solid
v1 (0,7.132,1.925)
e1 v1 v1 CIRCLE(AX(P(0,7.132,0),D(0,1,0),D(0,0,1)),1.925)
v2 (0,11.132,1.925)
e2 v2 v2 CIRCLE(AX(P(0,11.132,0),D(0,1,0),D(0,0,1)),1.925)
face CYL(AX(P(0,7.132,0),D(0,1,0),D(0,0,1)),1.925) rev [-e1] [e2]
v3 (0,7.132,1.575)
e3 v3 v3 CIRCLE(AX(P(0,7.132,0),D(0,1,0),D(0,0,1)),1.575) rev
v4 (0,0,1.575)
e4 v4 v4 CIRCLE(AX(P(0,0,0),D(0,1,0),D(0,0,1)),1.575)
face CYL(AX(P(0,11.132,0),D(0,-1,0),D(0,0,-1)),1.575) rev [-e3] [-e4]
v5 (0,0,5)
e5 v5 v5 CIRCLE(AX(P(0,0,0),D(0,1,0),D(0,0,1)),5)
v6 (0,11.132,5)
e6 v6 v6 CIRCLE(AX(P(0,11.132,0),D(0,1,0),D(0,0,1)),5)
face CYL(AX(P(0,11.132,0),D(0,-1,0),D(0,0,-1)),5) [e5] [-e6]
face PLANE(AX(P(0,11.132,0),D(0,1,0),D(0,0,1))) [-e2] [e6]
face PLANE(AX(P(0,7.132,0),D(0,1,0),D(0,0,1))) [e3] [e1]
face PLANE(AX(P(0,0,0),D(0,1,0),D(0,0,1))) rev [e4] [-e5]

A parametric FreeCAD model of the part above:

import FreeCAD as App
import Part
import Sketcher
from FreeCAD import Vector

doc = App.newDocument("Part")
params = doc.addObject("Spreadsheet::Sheet", "Params")
for row, (alias, value) in enumerate([
    ("sketch1_diameter", "10 mm"),
    ("sketch1_diameter2", "3.15 mm"),
    ("pad1_length", "11.132 mm"),
    ("sketch2_diameter", "3.85 mm"),
    ("pocket1_length", "4 mm"),
], start=1):
    params.set(f"A{row}", alias)
    params.set(f"B{row}", "=" + value)
    params.setAlias(f"B{row}", alias)

body = doc.addObject("PartDesign::Body", "Body")

# Sketch on XZ plane
sketch1 = doc.addObject("Sketcher::SketchObject", "Sketch")
body.addObject(sketch1)
sketch1.AttachmentSupport = (doc.XZ_Plane, [""])
sketch1.MapMode = "FlatFace"
sketch1.addGeometry(Part.Circle(Vector(0, 0, 0), Vector(0, 0, 1), 5), False)
sketch1.addGeometry(Part.Circle(Vector(0, 0, 0), Vector(0, 0, 1), 1.575), False)
sketch1.addConstraint(Sketcher.Constraint("Coincident", 0, 3, -1, 1))
sketch1.addConstraint(Sketcher.Constraint("Coincident", 1, 3, -1, 1))
sketch1.addConstraint(Sketcher.Constraint("Diameter", 0, 10.0))
sketch1.addConstraint(Sketcher.Constraint("Diameter", 1, 3.15))
sketch1.setExpression("Constraints[2]", "Params.sketch1_diameter")
sketch1.setExpression("Constraints[3]", "Params.sketch1_diameter2")
pad1 = doc.addObject("PartDesign::Pad", "Pad")
body.addObject(pad1)
pad1.Profile = sketch1
pad1.setExpression("Length", "Params.pad1_length")
pad1.Reversed = True

# Sketch on XZ plane
sketch2 = doc.addObject("Sketcher::SketchObject", "Sketch001")
body.addObject(sketch2)
sketch2.AttachmentSupport = (doc.XZ_Plane, [""])
sketch2.MapMode = "FlatFace"
sketch2.AttachmentOffset = App.Placement(Vector(0, 0, -11.132), App.Rotation())
sketch2.addGeometry(Part.Circle(Vector(0, 0, 0), Vector(0, 0, 1), 1.925), False)
sketch2.addConstraint(Sketcher.Constraint("Coincident", 0, 3, -1, 1))
sketch2.addConstraint(Sketcher.Constraint("Diameter", 0, 3.85))
sketch2.setExpression("Constraints[1]", "Params.sketch2_diameter")
pocket1 = doc.addObject("PartDesign::Pocket", "Pocket")
body.addObject(pocket1)
pocket1.Profile = sketch2
pocket1.setExpression("Length", "Params.pocket1_length")
pocket1.Reversed = True

doc.recompute()
